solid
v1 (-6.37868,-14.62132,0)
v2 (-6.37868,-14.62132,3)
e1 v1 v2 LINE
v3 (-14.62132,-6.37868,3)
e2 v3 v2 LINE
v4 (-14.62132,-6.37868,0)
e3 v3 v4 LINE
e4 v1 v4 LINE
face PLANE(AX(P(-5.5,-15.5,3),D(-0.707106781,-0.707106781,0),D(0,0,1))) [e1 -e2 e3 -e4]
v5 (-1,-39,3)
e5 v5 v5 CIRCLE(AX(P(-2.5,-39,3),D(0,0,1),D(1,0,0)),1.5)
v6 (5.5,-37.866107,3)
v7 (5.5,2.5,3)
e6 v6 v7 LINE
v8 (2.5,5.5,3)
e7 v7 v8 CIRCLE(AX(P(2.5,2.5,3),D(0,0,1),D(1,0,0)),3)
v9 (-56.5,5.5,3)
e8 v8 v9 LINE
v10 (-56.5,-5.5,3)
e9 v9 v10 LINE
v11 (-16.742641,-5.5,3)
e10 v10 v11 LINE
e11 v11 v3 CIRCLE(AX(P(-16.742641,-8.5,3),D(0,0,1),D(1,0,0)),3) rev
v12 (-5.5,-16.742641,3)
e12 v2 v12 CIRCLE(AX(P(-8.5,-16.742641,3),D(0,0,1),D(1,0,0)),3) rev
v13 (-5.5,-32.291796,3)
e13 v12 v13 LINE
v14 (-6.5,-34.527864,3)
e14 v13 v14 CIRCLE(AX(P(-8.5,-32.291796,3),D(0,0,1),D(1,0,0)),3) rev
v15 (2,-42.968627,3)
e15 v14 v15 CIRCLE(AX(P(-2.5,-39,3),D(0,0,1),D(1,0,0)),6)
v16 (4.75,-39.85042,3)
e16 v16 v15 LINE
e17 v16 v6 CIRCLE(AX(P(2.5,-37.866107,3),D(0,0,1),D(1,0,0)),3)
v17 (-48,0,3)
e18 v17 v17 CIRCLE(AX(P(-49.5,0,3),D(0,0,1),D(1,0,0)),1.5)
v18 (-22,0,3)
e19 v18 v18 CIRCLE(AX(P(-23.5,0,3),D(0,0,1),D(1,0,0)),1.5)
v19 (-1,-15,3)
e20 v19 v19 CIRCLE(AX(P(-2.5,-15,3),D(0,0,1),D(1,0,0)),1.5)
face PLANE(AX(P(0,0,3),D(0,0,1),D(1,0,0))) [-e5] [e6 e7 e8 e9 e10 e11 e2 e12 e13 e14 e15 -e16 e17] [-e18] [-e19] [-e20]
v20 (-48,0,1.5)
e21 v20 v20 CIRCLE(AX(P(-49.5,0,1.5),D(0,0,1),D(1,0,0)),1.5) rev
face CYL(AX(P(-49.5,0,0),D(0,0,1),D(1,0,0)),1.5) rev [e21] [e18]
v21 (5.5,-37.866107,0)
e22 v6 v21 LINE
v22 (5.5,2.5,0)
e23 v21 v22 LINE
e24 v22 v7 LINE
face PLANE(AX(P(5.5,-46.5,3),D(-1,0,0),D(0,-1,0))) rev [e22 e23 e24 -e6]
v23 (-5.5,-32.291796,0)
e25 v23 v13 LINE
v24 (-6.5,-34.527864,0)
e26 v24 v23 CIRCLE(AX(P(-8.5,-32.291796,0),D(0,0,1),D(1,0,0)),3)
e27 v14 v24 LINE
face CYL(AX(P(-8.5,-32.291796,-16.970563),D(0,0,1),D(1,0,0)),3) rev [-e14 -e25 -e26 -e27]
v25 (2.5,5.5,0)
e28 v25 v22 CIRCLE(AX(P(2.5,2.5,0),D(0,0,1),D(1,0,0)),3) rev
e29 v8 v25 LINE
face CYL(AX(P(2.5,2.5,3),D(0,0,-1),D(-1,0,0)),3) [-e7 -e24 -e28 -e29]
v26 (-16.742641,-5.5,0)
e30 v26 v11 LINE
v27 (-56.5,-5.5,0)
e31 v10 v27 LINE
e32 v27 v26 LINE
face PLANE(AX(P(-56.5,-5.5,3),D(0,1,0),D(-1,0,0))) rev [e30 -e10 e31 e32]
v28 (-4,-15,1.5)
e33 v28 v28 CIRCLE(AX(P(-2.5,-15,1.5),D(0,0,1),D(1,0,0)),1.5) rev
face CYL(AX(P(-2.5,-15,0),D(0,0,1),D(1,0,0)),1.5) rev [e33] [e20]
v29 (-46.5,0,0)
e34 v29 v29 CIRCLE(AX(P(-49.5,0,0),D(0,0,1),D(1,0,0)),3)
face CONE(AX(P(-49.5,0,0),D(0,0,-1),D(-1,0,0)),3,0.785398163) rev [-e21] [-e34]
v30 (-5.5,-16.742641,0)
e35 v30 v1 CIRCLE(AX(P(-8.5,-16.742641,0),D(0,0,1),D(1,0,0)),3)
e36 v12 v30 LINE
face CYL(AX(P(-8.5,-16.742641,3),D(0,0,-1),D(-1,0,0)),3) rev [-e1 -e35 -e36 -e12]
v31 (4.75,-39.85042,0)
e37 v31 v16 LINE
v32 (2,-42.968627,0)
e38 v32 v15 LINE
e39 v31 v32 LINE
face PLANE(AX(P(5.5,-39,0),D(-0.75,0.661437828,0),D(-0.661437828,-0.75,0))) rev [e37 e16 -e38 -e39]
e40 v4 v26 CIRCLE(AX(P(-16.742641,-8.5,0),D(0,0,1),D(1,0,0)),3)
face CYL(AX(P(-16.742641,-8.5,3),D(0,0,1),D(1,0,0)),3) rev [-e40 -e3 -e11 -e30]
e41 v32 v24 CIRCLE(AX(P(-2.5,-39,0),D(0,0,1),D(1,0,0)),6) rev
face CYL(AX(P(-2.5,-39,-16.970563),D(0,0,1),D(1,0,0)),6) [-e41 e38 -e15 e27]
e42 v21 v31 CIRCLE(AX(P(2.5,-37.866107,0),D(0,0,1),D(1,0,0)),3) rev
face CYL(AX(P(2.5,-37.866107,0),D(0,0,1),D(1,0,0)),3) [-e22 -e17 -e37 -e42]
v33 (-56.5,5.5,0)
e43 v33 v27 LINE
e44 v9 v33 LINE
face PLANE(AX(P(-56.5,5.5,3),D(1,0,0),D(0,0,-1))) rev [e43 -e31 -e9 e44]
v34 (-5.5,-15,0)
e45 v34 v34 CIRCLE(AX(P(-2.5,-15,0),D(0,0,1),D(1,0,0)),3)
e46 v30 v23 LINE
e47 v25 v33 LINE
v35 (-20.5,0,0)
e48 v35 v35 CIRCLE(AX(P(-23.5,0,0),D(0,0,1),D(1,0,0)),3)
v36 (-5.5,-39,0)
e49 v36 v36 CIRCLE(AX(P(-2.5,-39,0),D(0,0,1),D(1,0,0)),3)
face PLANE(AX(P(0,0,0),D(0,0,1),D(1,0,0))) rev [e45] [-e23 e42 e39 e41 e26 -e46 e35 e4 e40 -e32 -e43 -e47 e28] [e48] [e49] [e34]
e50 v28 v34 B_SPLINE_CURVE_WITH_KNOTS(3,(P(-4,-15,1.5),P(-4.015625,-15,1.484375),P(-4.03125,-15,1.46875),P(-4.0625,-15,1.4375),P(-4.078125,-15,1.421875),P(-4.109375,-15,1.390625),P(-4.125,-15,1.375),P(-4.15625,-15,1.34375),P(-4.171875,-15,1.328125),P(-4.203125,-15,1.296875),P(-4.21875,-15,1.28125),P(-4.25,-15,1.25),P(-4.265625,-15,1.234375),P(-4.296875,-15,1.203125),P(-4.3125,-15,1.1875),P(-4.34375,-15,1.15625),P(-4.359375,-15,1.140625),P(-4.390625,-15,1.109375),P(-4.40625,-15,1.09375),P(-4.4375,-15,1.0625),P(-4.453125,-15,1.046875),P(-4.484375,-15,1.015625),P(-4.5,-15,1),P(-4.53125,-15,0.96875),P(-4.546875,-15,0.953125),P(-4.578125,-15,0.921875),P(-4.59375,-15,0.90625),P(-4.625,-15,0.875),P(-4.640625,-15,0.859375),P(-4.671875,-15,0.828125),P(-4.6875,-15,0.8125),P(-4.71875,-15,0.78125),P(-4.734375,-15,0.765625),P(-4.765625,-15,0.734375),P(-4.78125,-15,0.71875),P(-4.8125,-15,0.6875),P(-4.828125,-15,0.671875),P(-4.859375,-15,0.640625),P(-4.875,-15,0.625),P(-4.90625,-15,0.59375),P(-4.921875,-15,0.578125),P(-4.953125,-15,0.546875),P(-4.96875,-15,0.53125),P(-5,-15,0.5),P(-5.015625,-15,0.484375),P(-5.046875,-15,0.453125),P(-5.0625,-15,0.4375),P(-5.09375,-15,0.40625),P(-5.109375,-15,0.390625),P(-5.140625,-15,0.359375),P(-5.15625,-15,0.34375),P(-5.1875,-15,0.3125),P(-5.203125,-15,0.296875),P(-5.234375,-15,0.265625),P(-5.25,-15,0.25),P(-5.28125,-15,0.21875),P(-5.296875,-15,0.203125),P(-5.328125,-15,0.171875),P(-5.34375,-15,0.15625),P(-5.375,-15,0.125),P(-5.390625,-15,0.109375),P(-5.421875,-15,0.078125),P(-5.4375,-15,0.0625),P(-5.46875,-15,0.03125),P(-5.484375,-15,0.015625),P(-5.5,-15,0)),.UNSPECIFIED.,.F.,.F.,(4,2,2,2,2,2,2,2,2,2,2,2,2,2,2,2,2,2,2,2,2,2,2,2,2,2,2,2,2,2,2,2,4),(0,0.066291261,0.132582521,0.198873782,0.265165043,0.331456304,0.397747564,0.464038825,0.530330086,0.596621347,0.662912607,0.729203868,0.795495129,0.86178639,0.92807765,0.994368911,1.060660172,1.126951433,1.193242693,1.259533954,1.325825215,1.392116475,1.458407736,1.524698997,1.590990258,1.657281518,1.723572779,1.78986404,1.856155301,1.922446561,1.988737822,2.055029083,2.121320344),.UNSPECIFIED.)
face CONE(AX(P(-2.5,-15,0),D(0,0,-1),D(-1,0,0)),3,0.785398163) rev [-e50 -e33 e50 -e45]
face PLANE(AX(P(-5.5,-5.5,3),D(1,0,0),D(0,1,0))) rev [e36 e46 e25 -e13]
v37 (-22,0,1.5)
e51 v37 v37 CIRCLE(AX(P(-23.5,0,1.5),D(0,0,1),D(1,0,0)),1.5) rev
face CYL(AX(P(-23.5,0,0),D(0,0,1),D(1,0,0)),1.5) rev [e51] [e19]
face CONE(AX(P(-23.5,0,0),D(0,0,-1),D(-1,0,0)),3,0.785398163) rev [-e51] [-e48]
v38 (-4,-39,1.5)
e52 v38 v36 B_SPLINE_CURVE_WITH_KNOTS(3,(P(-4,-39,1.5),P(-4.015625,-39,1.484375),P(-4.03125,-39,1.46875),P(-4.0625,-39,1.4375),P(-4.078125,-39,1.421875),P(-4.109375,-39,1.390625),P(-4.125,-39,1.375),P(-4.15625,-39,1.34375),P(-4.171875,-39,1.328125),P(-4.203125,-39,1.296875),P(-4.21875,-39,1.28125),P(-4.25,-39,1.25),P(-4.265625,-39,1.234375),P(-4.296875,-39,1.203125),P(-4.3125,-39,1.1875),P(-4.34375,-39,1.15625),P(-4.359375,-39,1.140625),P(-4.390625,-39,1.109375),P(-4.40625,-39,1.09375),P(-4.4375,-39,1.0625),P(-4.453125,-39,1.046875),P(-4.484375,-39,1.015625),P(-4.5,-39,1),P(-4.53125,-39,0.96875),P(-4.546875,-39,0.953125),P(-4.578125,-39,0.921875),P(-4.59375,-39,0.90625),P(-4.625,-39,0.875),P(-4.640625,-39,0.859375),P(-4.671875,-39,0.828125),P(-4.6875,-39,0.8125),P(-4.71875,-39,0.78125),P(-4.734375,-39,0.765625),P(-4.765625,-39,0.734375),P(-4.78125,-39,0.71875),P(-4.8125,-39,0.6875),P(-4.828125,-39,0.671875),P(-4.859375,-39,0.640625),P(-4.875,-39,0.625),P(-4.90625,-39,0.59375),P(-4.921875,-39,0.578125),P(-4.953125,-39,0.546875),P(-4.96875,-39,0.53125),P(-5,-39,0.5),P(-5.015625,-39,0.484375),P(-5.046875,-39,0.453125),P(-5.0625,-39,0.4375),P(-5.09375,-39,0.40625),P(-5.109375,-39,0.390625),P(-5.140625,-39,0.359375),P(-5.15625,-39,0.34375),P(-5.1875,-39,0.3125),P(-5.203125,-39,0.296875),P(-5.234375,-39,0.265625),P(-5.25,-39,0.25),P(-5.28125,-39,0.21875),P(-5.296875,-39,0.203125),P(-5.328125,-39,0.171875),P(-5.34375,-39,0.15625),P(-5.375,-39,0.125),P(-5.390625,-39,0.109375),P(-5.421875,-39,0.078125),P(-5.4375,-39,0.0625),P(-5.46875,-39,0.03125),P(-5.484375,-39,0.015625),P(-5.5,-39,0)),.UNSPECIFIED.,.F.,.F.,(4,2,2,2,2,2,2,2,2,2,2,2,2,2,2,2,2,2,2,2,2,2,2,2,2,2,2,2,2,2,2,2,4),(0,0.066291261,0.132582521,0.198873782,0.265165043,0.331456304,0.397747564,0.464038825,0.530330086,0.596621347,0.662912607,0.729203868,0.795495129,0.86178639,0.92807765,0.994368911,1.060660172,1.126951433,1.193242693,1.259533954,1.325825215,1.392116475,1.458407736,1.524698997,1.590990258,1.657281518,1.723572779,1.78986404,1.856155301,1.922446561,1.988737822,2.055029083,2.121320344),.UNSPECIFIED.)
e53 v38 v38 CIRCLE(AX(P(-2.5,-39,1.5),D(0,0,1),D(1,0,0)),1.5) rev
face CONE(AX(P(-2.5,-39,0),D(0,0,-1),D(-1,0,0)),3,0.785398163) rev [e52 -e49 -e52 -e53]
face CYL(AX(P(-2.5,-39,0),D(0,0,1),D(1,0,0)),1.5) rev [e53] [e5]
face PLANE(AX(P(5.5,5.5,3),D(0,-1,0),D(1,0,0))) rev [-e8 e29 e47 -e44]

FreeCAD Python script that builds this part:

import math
import FreeCAD as App
import Part
import Sketcher


def edges_at(feature, points):
    """Names of the edges that pass closest to the given points."""
    edges = feature.Shape.Edges
    near = lambda p: min(range(len(edges)), key=lambda i: edges[i].distToShape(Part.Vertex(*p))[0])
    return sorted({f"Edge{near(p) + 1}" for p in points})

doc = App.newDocument("Part")
params = doc.addObject("Spreadsheet::Sheet", "Params")
for row, (alias, value) in enumerate([
    ("sketch1_width", "51 mm"),
    ("sketch1_width2", "11 mm"),
    ("sketch1_height", "41 mm"),
    ("pad1_length", "3 mm"),
    ("sketch2_diameter", "3 mm"),
    ("sketch3_diameter", "12 mm"),
    ("sketch3_diameter2", "3 mm"),
    ("pad2_length", "3 mm"),
    ("sketch4_radius", "6 mm"),
    ("sketch4_width", "11 mm"),
    ("sketch4_height", "7.5 mm"),
    ("chamfer_size", "10 mm"),
    ("fillet_radius", "3 mm"),
    ("chamfer2_size", "1.5 mm"),
], start=1):
    params.set(f"A{row}", alias)
    params.set(f"B{row}", "=" + value)
    params.setAlias(f"B{row}", alias)

body = doc.addObject("PartDesign::Body", "Body")

# Sketch on XY plane
sketch1 = body.newObject("Sketcher::SketchObject", "Sketch")
sketch1.AttachmentSupport = (doc.getObject("XY_Plane"), [""])
sketch1.MapMode = "FlatFace"
sketch1.addGeometry(Part.LineSegment(App.Vector(-56.5, 5.5, 0), App.Vector(-56.5, -5.5, 0)), False)
sketch1.addGeometry(Part.LineSegment(App.Vector(-56.5, -5.5, 0), App.Vector(-5.5, -5.5, 0)), False)
sketch1.addGeometry(Part.LineSegment(App.Vector(-5.5, -5.5, 0), App.Vector(-5.5, -46.5, 0)), False)
sketch1.addGeometry(Part.LineSegment(App.Vector(-5.5, -46.5, 0), App.Vector(5.5, -46.5, 0)), False)
sketch1.addGeometry(Part.LineSegment(App.Vector(5.5, -46.5, 0), App.Vector(5.5, 5.5, 0)), False)
sketch1.addGeometry(Part.LineSegment(App.Vector(5.5, 5.5, 0), App.Vector(-56.5, 5.5, 0)), False)
sketch1.addConstraint(Sketcher.Constraint("Coincident", 0, 2, 1, 1))
sketch1.addConstraint(Sketcher.Constraint("Coincident", 1, 2, 2, 1))
sketch1.addConstraint(Sketcher.Constraint("Coincident", 2, 2, 3, 1))
sketch1.addConstraint(Sketcher.Constraint("Coincident", 3, 2, 4, 1))
sketch1.addConstraint(Sketcher.Constraint("Coincident", 4, 2, 5, 1))
sketch1.addConstraint(Sketcher.Constraint("Coincident", 5, 2, 0, 1))
sketch1.addConstraint(Sketcher.Constraint("Vertical", 0))
sketch1.addConstraint(Sketcher.Constraint("Horizontal", 1))
sketch1.addConstraint(Sketcher.Constraint("Vertical", 2))
sketch1.addConstraint(Sketcher.Constraint("Horizontal", 3))
sketch1.addConstraint(Sketcher.Constraint("Vertical", 4))
sketch1.addConstraint(Sketcher.Constraint("Horizontal", 5))
sketch1.addConstraint(Sketcher.Constraint("Symmetric", 1, 2, 4, 2, -1, 1))
sketch1.addConstraint(Sketcher.Constraint("Equal", 3, 0))
sketch1.addConstraint(Sketcher.Constraint("DistanceX", 1, 1, 1, 2, 51.0))
sketch1.addConstraint(Sketcher.Constraint("DistanceX", 3, 1, 3, 2, 11.0))
sketch1.addConstraint(Sketcher.Constraint("DistanceY", 2, 2, 2, 1, 41.0))
sketch1.setExpression("Constraints[14]", "Params.sketch1_width")
sketch1.setExpression("Constraints[15]", "Params.sketch1_width2")
sketch1.setExpression("Constraints[16]", "Params.sketch1_height")
pad1 = body.newObject("PartDesign::Pad", "Pad")
pad1.Profile = sketch1
pad1.setExpression("Length", "Params.pad1_length")

# Sketch on XY plane
sketch2 = body.newObject("Sketcher::SketchObject", "Sketch001")
sketch2.AttachmentSupport = (doc.getObject("XY_Plane"), [""])
sketch2.MapMode = "FlatFace"
sketch2.AttachmentOffset = App.Placement(App.Vector(0, 0, 3), App.Rotation())
sketch2.addGeometry(Part.Circle(App.Vector(-49.5, 0, 0), App.Vector(0, 0, 1), 1.5), False)
sketch2.addGeometry(Part.Circle(App.Vector(-23.5, 0, 0), App.Vector(0, 0, 1), 1.5), False)
sketch2.addGeometry(Part.Circle(App.Vector(-2.5, -15, 0), App.Vector(0, 0, 1), 1.5), False)
sketch2.addGeometry(Part.Circle(App.Vector(-2.5, -39, 0), App.Vector(0, 0, 1), 1.5), False)
sketch2.addConstraint(Sketcher.Constraint("Equal", 0, 1))
sketch2.addConstraint(Sketcher.Constraint("Equal", 1, 2))
sketch2.addConstraint(Sketcher.Constraint("Equal", 2, 3))
sketch2.addConstraint(Sketcher.Constraint("PointOnObject", 0, 3, -1))
sketch2.addConstraint(Sketcher.Constraint("PointOnObject", 1, 3, -1))
sketch2.addConstraint(Sketcher.Constraint("Vertical", 2, 3, 3, 3))
sketch2.addConstraint(Sketcher.Constraint("Diameter", 0, 3.0))
sketch2.addConstraint(Sketcher.Constraint("DistanceY", 2, 3, -1, 1, 15.0))
sketch2.addConstraint(Sketcher.Constraint("DistanceY", 3, 3, -1, 1, 39.0))
sketch2.addConstraint(Sketcher.Constraint("DistanceX", 0, 3, 1, 3, 26.0))
sketch2.addConstraint(Sketcher.Constraint("DistanceX", 1, 3, 2, 3, 21.0))
sketch2.addConstraint(Sketcher.Constraint("DistanceX", 0, 3, -1, 1, 49.5))
sketch2.setExpression("Constraints[6]", "Params.sketch2_diameter")
pocket1 = body.newObject("PartDesign::Pocket", "Pocket")
pocket1.Profile = sketch2
pocket1.Type = "ThroughAll"

# Sketch on XY plane
sketch3 = body.newObject("Sketcher::SketchObject", "Sketch002")
sketch3.AttachmentSupport = (doc.getObject("XY_Plane"), [""])
sketch3.MapMode = "FlatFace"
sketch3.AttachmentOffset = App.Placement(App.Vector(0, 0, 3), App.Rotation())
sketch3.addGeometry(Part.Circle(App.Vector(-2.5, -39, 0), App.Vector(0, 0, 1), 6), False)
sketch3.addGeometry(Part.Circle(App.Vector(-2.5, -39, 0), App.Vector(0, 0, 1), 1.5), False)
sketch3.addConstraint(Sketcher.Constraint("Coincident", 1, 3, 0, 3))
sketch3.addConstraint(Sketcher.Constraint("Diameter", 0, 12.0))
sketch3.addConstraint(Sketcher.Constraint("Diameter", 1, 3.0))
sketch3.addConstraint(Sketcher.Constraint("DistanceY", 0, 3, -1, 1, 39.0))
sketch3.addConstraint(Sketcher.Constraint("DistanceX", 0, 3, -1, 1, 2.5))
sketch3.setExpression("Constraints[1]", "Params.sketch3_diameter")
sketch3.setExpression("Constraints[2]", "Params.sketch3_diameter2")
pad2 = body.newObject("PartDesign::Pad", "Pad001")
pad2.Profile = sketch3
pad2.setExpression("Length", "Params.pad2_length")
pad2.Reversed = True

# Sketch on XY plane
sketch4 = body.newObject("Sketcher::SketchObject", "Sketch003")
sketch4.AttachmentSupport = (doc.getObject("XY_Plane"), [""])
sketch4.MapMode = "FlatFace"
sketch4.AttachmentOffset = App.Placement(App.Vector(0, 0, 3), App.Rotation())
sketch4.addGeometry(Part.LineSegment(App.Vector(-5.5, -44.196152, 0), App.Vector(-5.5, -46.5, 0)), False)
sketch4.addGeometry(Part.LineSegment(App.Vector(-5.5, -46.5, 0), App.Vector(5.5, -46.5, 0)), False)
sketch4.addGeometry(Part.LineSegment(App.Vector(5.5, -46.5, 0), App.Vector(5.5, -39, 0)), False)
sketch4.addGeometry(Part.LineSegment(App.Vector(5.5, -39, 0), App.Vector(2, -42.968627, 0)), False)
sketch4.addGeometry(Part.ArcOfCircle(Part.Circle(App.Vector(-2.5, -39, 0), App.Vector(0, 0, 1), 6), math.radians(-120), math.radians(-41.409622)), False)
sketch4.addConstraint(Sketcher.Constraint("Coincident", 0, 2, 1, 1))
sketch4.addConstraint(Sketcher.Constraint("Coincident", 1, 2, 2, 1))
sketch4.addConstraint(Sketcher.Constraint("Coincident", 2, 2, 3, 1))
sketch4.addConstraint(Sketcher.Constraint("Tangent", 3, 2, 4, 2))
sketch4.addConstraint(Sketcher.Constraint("Coincident", 4, 1, 0, 1))
sketch4.addConstraint(Sketcher.Constraint("Vertical", 0))
sketch4.addConstraint(Sketcher.Constraint("Horizontal", 1))
sketch4.addConstraint(Sketcher.Constraint("Vertical", 2))
sketch4.addConstraint(Sketcher.Constraint("Horizontal", 4, 3, 2, 2))
sketch4.addConstraint(Sketcher.Constraint("Radius", 4, 6.0))
sketch4.addConstraint(Sketcher.Constraint("DistanceX", 1, 1, 1, 2, 11.0))
sketch4.addConstraint(Sketcher.Constraint("DistanceY", 2, 1, 2, 2, 7.5))
sketch4.addConstraint(Sketcher.Constraint("DistanceY", 4, 3, -1, 1, 39.0))
sketch4.addConstraint(Sketcher.Constraint("DistanceX", -1, 1, 3, 2, 2.0))
sketch4.addConstraint(Sketcher.Constraint("DistanceX", 0, 2, 4, 3, 3.0))
sketch4.setExpression("Constraints[9]", "Params.sketch4_radius")
sketch4.setExpression("Constraints[10]", "Params.sketch4_width")
sketch4.setExpression("Constraints[11]", "Params.sketch4_height")
pocket2 = body.newObject("PartDesign::Pocket", "Pocket001")
pocket2.Profile = sketch4
pocket2.Type = "ThroughAll"
doc.recompute()

chamfer = body.newObject("PartDesign::Chamfer", "Chamfer")
chamfer.Base = (pocket2, edges_at(pocket2, [(-5.5, -5.5, 1.5)]))
chamfer.setExpression("Size", "Params.chamfer_size")
doc.recompute()

fillet = body.newObject("PartDesign::Fillet", "Fillet")
fillet.Base = (chamfer, edges_at(chamfer, [
    (5.5, 5.5, 1.5),
    (-5.5, -33.804, 1.5),
    (5.5, -39, 1.5),
    (-5.5, -15.5, 1.5),
    (-15.5, -5.5, 1.5),
]))
fillet.setExpression("Radius", "Params.fillet_radius")
doc.recompute()

chamfer2 = body.newObject("PartDesign::Chamfer", "Chamfer001")
chamfer2.Base = (fillet, edges_at(fillet, [
    (-4, -15, 0),
    (-51, 0, 0),
    (-25, 0, 0),
    (-4, -39, 0),
]))
chamfer2.setExpression("Size", "Params.chamfer2_size")

doc.recompute()
